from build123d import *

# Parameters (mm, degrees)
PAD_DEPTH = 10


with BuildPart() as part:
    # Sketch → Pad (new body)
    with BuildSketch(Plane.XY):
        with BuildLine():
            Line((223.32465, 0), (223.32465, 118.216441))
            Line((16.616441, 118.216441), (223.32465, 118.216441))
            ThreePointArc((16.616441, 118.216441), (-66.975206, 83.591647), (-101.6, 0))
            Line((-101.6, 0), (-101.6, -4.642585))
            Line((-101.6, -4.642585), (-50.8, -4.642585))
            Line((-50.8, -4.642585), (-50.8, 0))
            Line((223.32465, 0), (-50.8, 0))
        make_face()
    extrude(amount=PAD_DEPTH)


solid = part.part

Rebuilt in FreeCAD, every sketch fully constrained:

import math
import FreeCAD as App
import Part
import Sketcher
from FreeCAD import Vector

doc = App.newDocument("Part")
body = doc.addObject("PartDesign::Body", "Body")

# Sketch on XY plane
sketch1 = body.newObject("Sketcher::SketchObject", "Sketch")
sketch1.AttachmentSupport = (doc.getObject("XY_Plane"), [""])
sketch1.MapMode = "FlatFace"
sketch1.addGeometry(Part.LineSegment(Vector(223.3, 0, 0), Vector(223.3, 118.2, 0)), False)
sketch1.addGeometry(Part.LineSegment(Vector(223.3, 118.2, 0), Vector(16.6, 118.2, 0)), False)
sketch1.addGeometry(Part.ArcOfCircle(Part.Circle(Vector(16.6, 0, 0), Vector(0, 0, 1), 118.2), math.radians(90), math.radians(180)), False)
sketch1.addGeometry(Part.LineSegment(Vector(-101.6, 0, 0), Vector(-101.6, -4.6, 0)), False)
sketch1.addGeometry(Part.LineSegment(Vector(-101.6, -4.6, 0), Vector(-50.8, -4.6, 0)), False)
sketch1.addGeometry(Part.LineSegment(Vector(-50.8, -4.6, 0), Vector(-50.8, 0, 0)), False)
sketch1.addGeometry(Part.LineSegment(Vector(-50.8, 0, 0), Vector(223.3, 0, 0)), False)
sketch1.addConstraint(Sketcher.Constraint("Coincident", 0, 2, 1, 1))
sketch1.addConstraint(Sketcher.Constraint("Tangent", 1, 2, 2, 1))
sketch1.addConstraint(Sketcher.Constraint("Tangent", 2, 2, 3, 1))
sketch1.addConstraint(Sketcher.Constraint("Coincident", 3, 2, 4, 1))
sketch1.addConstraint(Sketcher.Constraint("Coincident", 4, 2, 5, 1))
sketch1.addConstraint(Sketcher.Constraint("Coincident", 5, 2, 6, 1))
sketch1.addConstraint(Sketcher.Constraint("Coincident", 6, 2, 0, 1))
sketch1.addConstraint(Sketcher.Constraint("Vertical", 0))
sketch1.addConstraint(Sketcher.Constraint("Horizontal", 1))
sketch1.addConstraint(Sketcher.Constraint("Vertical", 3))
sketch1.addConstraint(Sketcher.Constraint("Horizontal", 4))
sketch1.addConstraint(Sketcher.Constraint("Vertical", 5))
sketch1.addConstraint(Sketcher.Constraint("Horizontal", 6))
sketch1.addConstraint(Sketcher.Constraint("PointOnObject", 2, 3, -1))
sketch1.addConstraint(Sketcher.Constraint("PointOnObject", 5, 2, -1))
sketch1.addConstraint(Sketcher.Constraint("DistanceX", 4, 1, 4, 2, 50.8))
sketch1.addConstraint(Sketcher.Constraint("DistanceX", 2, 2, -1, 1, 101.6))
sketch1.addConstraint(Sketcher.Constraint("Radius", 2, 118.216441))
sketch1.addConstraint(Sketcher.Constraint("DistanceX", 1, 2, 1, 1, 206.708209))
sketch1.addConstraint(Sketcher.Constraint("DistanceY", 3, 2, 3, 1, 4.642585))
pad1 = body.newObject("PartDesign::Pad", "Pad")
pad1.Profile = sketch1
pad1.Length = 10

doc.recompute()
